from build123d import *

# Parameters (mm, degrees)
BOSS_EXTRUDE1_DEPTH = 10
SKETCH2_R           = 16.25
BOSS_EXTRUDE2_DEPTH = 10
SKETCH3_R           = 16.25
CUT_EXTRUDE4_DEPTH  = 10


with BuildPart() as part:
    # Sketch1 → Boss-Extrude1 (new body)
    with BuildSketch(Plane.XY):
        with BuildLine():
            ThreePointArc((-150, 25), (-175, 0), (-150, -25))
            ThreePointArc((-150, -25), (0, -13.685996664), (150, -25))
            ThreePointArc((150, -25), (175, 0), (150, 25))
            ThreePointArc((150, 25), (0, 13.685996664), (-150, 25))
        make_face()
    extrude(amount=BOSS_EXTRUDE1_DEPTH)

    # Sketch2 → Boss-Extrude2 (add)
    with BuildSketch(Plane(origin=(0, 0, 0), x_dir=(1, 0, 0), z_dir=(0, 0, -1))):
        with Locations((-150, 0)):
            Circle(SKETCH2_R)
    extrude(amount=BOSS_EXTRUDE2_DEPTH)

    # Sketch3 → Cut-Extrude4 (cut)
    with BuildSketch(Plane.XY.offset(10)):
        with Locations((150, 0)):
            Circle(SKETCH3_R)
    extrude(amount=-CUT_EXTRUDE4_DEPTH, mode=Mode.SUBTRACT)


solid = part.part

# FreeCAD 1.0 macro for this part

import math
import FreeCAD as App
import Part
import Sketcher

V = App.Vector

doc = App.newDocument("Part")
body = doc.addObject("PartDesign::Body", "Body")

# Sketch on XY plane
sketch1 = body.newObject("Sketcher::SketchObject", "Sketch")
sketch1.AttachmentSupport = (doc.getObject("XY_Plane"), [""])
sketch1.MapMode = "FlatFace"
sketch1.addGeometry([
    Part.ArcOfCircle(Part.Circle(V(-150, 0, 0), V(0, 0, 1), 25), math.radians(90), math.radians(270)),
    Part.ArcOfCircle(Part.Circle(V(0, -1014, 0), V(0, 0, 1), 1000), math.radians(81.37), math.radians(98.63)),
    Part.ArcOfCircle(Part.Circle(V(150, 0, 0), V(0, 0, 1), 25), math.radians(-90), math.radians(90)),
    Part.ArcOfCircle(Part.Circle(V(0, 1014, 0), V(0, 0, 1), 1000), math.radians(-98.63), math.radians(-81.37)),
], False)
sketch1.addConstraint([
    Sketcher.Constraint("Coincident", 0, 2, 1, 2),
    Sketcher.Constraint("Coincident", 1, 1, 2, 1),
    Sketcher.Constraint("Coincident", 2, 2, 3, 2),
    Sketcher.Constraint("Coincident", 3, 1, 0, 1),
    Sketcher.Constraint("Equal", 0, 2),
    Sketcher.Constraint("Equal", 1, 3),
    Sketcher.Constraint("Symmetric", 0, 3, 2, 3, -1, 1),
    Sketcher.Constraint("Symmetric", 1, 3, 3, 3, -1, 1),
    Sketcher.Constraint("PointOnObject", 0, 3, -1),
    Sketcher.Constraint("PointOnObject", 1, 3, -2),
    Sketcher.Constraint("Vertical", 2, 3, 1, 1),
    Sketcher.Constraint("Radius", 0, 25.0),
    Sketcher.Constraint("Radius", 1, 1000.0),
    Sketcher.Constraint("DistanceX", 0, 3, -1, 1, 150.0),
])
pad1 = body.newObject("PartDesign::Pad", "Pad")
pad1.Profile = sketch1
pad1.Length = 10

# Sketch on XY plane
sketch2 = body.newObject("Sketcher::SketchObject", "Sketch001")
sketch2.AttachmentSupport = (doc.getObject("XY_Plane"), [""])
sketch2.MapMode = "FlatFace"
sketch2.addGeometry(Part.Circle(V(-150, 0, 0), V(0, 0, 1), 16), False)
sketch2.addConstraint([
    Sketcher.Constraint("PointOnObject", 0, 3, -1),
    Sketcher.Constraint("Diameter", 0, 32.5),
    Sketcher.Constraint("DistanceX", 0, 3, -1, 1, 150.0),
])
pad2 = body.newObject("PartDesign::Pad", "Pad001")
pad2.Profile = sketch2
pad2.Length = 10
pad2.Reversed = True

# Sketch on XY plane
sketch3 = body.newObject("Sketcher::SketchObject", "Sketch002")
sketch3.AttachmentSupport = (doc.getObject("XY_Plane"), [""])
sketch3.MapMode = "FlatFace"
sketch3.AttachmentOffset = App.Placement(V(0, 0, 10), App.Rotation())
sketch3.addGeometry(Part.Circle(V(150, 0, 0), V(0, 0, 1), 16), False)
sketch3.addConstraint([
    Sketcher.Constraint("PointOnObject", 0, 3, -1),
    Sketcher.Constraint("Diameter", 0, 32.5),
    Sketcher.Constraint("DistanceX", -1, 1, 0, 3, 150.0),
])
pocket1 = body.newObject("PartDesign::Pocket", "Pocket")
pocket1.Profile = sketch3
pocket1.Length = 10

doc.recompute()
